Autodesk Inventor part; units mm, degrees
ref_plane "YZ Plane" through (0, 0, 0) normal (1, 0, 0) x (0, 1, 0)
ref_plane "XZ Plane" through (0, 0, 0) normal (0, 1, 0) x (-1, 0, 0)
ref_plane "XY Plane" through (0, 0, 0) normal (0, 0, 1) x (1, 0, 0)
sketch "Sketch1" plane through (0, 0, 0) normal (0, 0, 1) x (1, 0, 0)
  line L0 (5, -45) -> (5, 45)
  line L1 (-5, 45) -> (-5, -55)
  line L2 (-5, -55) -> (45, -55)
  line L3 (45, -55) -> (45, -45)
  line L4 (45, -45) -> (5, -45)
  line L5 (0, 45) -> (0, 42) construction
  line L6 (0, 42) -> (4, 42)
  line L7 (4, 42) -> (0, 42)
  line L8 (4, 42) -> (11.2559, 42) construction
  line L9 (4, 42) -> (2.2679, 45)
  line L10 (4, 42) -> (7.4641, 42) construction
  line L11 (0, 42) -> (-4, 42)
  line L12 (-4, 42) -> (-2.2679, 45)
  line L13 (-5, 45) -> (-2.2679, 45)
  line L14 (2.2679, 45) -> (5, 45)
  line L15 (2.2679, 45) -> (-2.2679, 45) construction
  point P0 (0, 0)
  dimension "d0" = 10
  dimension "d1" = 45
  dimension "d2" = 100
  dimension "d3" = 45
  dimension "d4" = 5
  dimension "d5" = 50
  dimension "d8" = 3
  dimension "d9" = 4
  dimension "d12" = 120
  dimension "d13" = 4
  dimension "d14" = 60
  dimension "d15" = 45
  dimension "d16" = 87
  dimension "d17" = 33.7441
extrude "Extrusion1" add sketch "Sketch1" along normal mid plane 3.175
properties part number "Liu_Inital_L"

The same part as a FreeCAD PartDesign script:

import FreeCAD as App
import Part
import Sketcher
Q = App.Units.Quantity

doc = App.newDocument("Part")
params = doc.addObject("Spreadsheet::Sheet", "Params")
for row, (alias, value) in enumerate([
    ("sketch1_height", "3.937 in"),
    ("pad1_length", "0.125 in"),
], start=1):
    params.set(f"A{row}", alias)
    params.set(f"B{row}", "=" + value)
    params.setAlias(f"B{row}", alias)

body = doc.addObject("PartDesign::Body", "Body")

# Sketch on XY plane
sketch1 = doc.addObject("Sketcher::SketchObject", "Sketch")
body.addObject(sketch1)
sketch1.AttachmentSupport = (doc.XY_Plane, [""])
sketch1.MapMode = "FlatFace"
sketch1.addGeometry(Part.LineSegment(App.Vector(45, -45, 0), App.Vector(5, -45, 0)), False)
sketch1.addGeometry(Part.LineSegment(App.Vector(5, -45, 0), App.Vector(5, 45, 0)), False)
sketch1.addGeometry(Part.LineSegment(App.Vector(5, 45, 0), App.Vector(2.3, 45, 0)), False)
sketch1.addGeometry(Part.LineSegment(App.Vector(2.3, 45, 0), App.Vector(4, 42, 0)), False)
sketch1.addGeometry(Part.LineSegment(App.Vector(4, 42, 0), App.Vector(-4, 42, 0)), False)
sketch1.addGeometry(Part.LineSegment(App.Vector(-4, 42, 0), App.Vector(-2.3, 45, 0)), False)
sketch1.addGeometry(Part.LineSegment(App.Vector(-2.3, 45, 0), App.Vector(-5, 45, 0)), False)
sketch1.addGeometry(Part.LineSegment(App.Vector(-5, 45, 0), App.Vector(-5, -55, 0)), False)
sketch1.addGeometry(Part.LineSegment(App.Vector(-5, -55, 0), App.Vector(45, -55, 0)), False)
sketch1.addGeometry(Part.LineSegment(App.Vector(45, -55, 0), App.Vector(45, -45, 0)), False)
sketch1.addConstraint(Sketcher.Constraint("Coincident", 0, 2, 1, 1))
sketch1.addConstraint(Sketcher.Constraint("Coincident", 1, 2, 2, 1))
sketch1.addConstraint(Sketcher.Constraint("Coincident", 2, 2, 3, 1))
sketch1.addConstraint(Sketcher.Constraint("Coincident", 3, 2, 4, 1))
sketch1.addConstraint(Sketcher.Constraint("Coincident", 4, 2, 5, 1))
sketch1.addConstraint(Sketcher.Constraint("Coincident", 5, 2, 6, 1))
sketch1.addConstraint(Sketcher.Constraint("Coincident", 6, 2, 7, 1))
sketch1.addConstraint(Sketcher.Constraint("Coincident", 7, 2, 8, 1))
sketch1.addConstraint(Sketcher.Constraint("Coincident", 8, 2, 9, 1))
sketch1.addConstraint(Sketcher.Constraint("Coincident", 9, 2, 0, 1))
sketch1.addConstraint(Sketcher.Constraint("Horizontal", 0))
sketch1.addConstraint(Sketcher.Constraint("Vertical", 1))
sketch1.addConstraint(Sketcher.Constraint("Horizontal", 2))
sketch1.addConstraint(Sketcher.Constraint("Horizontal", 4))
sketch1.addConstraint(Sketcher.Constraint("Horizontal", 6))
sketch1.addConstraint(Sketcher.Constraint("Vertical", 7))
sketch1.addConstraint(Sketcher.Constraint("Horizontal", 8))
sketch1.addConstraint(Sketcher.Constraint("Vertical", 9))
sketch1.addConstraint(Sketcher.Constraint("Symmetric", 0, 2, 6, 2, -1, 1))
sketch1.addConstraint(Sketcher.Constraint("Symmetric", 2, 2, 5, 2, -2))
sketch1.addConstraint(Sketcher.Constraint("Equal", 3, 5))
sketch1.addConstraint(Sketcher.Constraint("DistanceY", 7, 2, 7, 1, Q("3.937 in")))
sketch1.addConstraint(Sketcher.Constraint("DistanceX", 8, 1, 8, 2, Q("1.9685 in")))
sketch1.addConstraint(Sketcher.Constraint("DistanceY", 9, 1, 9, 2, Q("0.3937 in")))
sketch1.addConstraint(Sketcher.Constraint("Angle", 3, Q("-59.9993 deg")))
sketch1.addConstraint(Sketcher.Constraint("DistanceY", 3, 2, 1, 2, Q("0.1181 in")))
sketch1.addConstraint(Sketcher.Constraint("DistanceX", 6, 2, 1, 2, Q("0.3937 in")))
sketch1.addConstraint(Sketcher.Constraint("DistanceX", -1, 1, 3, 2, 4.0))
sketch1.setExpression("Constraints[21]", "Params.sketch1_height")
pad1 = doc.addObject("PartDesign::Pad", "Pad")
body.addObject(pad1)
pad1.Profile = sketch1
pad1.setExpression("Length", "Params.pad1_length")
pad1.Midplane = True

doc.recompute()
